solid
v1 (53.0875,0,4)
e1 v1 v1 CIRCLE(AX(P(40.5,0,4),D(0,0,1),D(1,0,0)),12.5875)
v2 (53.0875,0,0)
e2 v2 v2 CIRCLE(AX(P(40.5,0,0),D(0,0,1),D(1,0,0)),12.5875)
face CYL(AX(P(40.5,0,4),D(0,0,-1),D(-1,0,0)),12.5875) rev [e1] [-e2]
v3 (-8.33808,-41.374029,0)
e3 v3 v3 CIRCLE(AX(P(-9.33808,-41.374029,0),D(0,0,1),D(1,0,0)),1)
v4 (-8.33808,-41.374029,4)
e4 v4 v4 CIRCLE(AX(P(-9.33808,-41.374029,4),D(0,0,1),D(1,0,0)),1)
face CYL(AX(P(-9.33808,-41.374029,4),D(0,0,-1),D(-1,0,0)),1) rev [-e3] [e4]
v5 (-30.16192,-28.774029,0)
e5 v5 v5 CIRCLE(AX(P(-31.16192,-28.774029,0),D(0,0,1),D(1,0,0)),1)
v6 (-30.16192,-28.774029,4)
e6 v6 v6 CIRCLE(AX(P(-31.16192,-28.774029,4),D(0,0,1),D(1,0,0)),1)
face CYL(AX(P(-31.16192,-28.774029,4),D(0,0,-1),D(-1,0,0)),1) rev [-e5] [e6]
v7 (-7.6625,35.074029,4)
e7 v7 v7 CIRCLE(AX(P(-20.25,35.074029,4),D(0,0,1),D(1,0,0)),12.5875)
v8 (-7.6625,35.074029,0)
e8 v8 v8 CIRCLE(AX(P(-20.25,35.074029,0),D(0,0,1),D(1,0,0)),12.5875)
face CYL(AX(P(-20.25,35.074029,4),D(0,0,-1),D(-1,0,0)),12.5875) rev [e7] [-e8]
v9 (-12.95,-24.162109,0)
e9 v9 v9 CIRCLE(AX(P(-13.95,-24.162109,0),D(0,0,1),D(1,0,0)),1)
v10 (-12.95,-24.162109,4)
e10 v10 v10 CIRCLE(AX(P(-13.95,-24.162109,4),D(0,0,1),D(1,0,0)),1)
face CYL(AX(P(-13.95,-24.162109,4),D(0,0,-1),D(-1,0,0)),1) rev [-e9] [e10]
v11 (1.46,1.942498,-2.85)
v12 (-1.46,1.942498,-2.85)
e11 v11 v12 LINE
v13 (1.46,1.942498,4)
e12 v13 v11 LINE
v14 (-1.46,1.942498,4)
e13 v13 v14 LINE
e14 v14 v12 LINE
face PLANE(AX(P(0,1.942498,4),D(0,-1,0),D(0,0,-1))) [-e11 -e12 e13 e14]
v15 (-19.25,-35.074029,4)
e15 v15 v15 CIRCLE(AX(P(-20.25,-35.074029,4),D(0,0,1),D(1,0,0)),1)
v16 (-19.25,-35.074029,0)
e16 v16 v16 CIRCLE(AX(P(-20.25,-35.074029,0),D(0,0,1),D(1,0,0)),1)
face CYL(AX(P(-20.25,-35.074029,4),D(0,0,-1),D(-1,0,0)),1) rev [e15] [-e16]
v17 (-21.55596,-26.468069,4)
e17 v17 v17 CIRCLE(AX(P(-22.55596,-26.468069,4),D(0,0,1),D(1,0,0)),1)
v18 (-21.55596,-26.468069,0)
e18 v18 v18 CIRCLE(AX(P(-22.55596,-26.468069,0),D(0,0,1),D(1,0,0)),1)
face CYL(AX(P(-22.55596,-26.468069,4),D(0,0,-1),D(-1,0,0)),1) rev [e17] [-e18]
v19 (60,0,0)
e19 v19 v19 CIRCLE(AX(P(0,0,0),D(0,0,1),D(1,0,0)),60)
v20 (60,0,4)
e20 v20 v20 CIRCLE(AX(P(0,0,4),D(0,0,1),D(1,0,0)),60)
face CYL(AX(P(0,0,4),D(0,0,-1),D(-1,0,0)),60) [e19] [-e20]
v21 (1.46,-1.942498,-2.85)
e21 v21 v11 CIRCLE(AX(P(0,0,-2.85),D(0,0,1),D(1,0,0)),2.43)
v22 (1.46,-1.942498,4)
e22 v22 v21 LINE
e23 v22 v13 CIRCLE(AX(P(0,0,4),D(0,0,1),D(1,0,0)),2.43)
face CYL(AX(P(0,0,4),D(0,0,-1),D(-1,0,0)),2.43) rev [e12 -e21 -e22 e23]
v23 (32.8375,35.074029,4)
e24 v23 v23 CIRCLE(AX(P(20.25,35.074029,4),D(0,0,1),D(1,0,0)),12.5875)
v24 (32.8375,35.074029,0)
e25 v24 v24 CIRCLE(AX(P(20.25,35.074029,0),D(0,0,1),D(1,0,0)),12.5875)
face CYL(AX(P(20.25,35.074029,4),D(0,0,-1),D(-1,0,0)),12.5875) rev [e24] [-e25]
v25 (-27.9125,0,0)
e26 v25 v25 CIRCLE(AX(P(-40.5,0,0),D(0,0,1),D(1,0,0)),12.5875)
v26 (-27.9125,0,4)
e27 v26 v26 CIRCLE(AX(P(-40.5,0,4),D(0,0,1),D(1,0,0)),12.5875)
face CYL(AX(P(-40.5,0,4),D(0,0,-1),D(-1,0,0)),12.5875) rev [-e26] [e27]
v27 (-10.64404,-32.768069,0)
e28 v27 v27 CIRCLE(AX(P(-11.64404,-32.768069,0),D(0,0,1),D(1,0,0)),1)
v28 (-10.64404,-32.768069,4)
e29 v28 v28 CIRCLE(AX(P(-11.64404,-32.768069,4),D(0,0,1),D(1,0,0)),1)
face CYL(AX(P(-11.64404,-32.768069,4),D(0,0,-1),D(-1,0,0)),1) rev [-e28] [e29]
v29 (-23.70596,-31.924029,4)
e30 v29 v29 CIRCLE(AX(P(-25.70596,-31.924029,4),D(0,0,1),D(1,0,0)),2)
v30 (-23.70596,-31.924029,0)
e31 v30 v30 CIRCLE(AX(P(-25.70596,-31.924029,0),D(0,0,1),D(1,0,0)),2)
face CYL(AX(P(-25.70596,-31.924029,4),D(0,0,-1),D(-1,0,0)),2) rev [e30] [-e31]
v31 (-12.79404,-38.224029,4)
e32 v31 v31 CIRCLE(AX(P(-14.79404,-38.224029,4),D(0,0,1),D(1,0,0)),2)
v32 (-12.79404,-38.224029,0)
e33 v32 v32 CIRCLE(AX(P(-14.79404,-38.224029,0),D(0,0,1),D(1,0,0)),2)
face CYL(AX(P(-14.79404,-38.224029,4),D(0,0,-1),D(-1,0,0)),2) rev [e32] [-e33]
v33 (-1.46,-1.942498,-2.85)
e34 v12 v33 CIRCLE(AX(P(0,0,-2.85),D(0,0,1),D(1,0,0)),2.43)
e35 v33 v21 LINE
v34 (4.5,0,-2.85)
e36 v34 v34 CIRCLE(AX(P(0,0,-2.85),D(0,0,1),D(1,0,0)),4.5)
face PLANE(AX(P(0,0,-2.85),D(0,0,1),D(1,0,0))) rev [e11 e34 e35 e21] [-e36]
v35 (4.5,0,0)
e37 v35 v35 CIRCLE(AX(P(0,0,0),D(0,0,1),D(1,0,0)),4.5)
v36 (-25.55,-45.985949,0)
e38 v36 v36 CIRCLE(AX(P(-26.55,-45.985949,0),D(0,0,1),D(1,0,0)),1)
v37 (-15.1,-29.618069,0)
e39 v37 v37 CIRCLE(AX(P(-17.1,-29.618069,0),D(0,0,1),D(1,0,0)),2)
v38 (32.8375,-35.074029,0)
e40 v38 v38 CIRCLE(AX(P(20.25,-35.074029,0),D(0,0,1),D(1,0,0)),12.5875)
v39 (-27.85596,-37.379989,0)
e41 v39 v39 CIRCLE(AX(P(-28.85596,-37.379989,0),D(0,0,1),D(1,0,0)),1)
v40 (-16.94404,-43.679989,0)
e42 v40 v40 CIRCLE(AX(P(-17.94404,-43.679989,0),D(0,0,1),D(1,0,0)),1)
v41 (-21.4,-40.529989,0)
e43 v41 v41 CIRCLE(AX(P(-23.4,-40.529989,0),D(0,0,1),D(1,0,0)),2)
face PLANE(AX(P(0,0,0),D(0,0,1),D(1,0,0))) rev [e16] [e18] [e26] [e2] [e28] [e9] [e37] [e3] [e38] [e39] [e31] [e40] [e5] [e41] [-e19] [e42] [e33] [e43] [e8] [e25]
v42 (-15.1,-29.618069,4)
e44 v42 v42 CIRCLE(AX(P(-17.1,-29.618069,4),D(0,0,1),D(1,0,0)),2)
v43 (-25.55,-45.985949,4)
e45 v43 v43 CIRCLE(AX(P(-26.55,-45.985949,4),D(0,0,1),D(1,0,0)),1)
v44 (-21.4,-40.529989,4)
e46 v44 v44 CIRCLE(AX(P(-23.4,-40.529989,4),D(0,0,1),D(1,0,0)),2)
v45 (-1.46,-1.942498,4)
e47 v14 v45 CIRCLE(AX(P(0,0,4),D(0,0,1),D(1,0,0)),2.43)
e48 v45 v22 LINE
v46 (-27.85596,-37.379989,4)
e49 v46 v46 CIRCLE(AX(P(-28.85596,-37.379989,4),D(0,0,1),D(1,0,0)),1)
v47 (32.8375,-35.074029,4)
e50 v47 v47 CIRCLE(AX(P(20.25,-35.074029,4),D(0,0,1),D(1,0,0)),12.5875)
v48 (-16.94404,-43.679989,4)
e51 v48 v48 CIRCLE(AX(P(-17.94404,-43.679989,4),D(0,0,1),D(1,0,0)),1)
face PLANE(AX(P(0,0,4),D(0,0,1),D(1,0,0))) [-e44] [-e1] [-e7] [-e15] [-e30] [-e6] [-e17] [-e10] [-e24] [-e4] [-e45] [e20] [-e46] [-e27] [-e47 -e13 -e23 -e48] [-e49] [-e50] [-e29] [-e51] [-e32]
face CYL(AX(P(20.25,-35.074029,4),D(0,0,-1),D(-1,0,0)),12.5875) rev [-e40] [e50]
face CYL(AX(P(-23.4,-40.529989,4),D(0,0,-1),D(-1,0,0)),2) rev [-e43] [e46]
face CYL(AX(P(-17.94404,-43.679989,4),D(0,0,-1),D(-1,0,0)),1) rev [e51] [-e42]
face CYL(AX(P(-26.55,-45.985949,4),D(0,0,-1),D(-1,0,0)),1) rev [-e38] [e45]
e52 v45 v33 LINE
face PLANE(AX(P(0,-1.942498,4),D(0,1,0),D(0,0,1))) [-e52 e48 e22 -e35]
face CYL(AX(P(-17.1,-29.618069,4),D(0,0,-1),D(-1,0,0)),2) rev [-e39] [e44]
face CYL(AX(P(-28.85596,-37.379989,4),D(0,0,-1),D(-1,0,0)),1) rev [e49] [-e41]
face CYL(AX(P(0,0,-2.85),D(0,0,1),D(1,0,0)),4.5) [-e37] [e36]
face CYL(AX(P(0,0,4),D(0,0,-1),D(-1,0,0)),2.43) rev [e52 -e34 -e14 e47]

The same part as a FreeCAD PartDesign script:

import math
import FreeCAD as App
import Part
import Sketcher
from FreeCAD import Vector
Q = App.Units.Quantity

doc = App.newDocument("Part")
body = doc.addObject("PartDesign::Body", "Body")

# Sketch on XY plane
sketch1 = doc.addObject("Sketcher::SketchObject", "Sketch")
body.addObject(sketch1)
sketch1.AttachmentSupport = (doc.XY_Plane, [""])
sketch1.MapMode = "FlatFace"
sketch1.addGeometry(Part.Circle(Vector(0, 0, 0), Vector(0, 0, 1), 60), False)
sketch1.addConstraint([
    Sketcher.Constraint("Coincident", 0, 3, -1, 1),
    Sketcher.Constraint("Diameter", 0, Q("120 mm")),
])
pad1 = doc.addObject("PartDesign::Pad", "Pad")
body.addObject(pad1)
pad1.Profile = sketch1
pad1.Length = 4

# Sketch on XY plane
sketch2 = doc.addObject("Sketcher::SketchObject", "Sketch001")
body.addObject(sketch2)
sketch2.AttachmentSupport = (doc.XY_Plane, [""])
sketch2.MapMode = "FlatFace"
sketch2.addGeometry([
    Part.ArcOfCircle(Part.Circle(Vector(0, 0, 0), Vector(0, 0, 1), 2.43), math.radians(126.928867), math.radians(233.071133)),  # 0
    Part.LineSegment(Vector(-1.46, -1.942498, 0), Vector(1.46, -1.942498, 0)),  # 1
    Part.ArcOfCircle(Part.Circle(Vector(0, 0, 0), Vector(0, 0, 1), 2.43), math.radians(-53.071133), math.radians(53.071133)),  # 2
    Part.LineSegment(Vector(1.46, 1.942498, 0), Vector(-1.46, 1.942498, 0)),  # 3
    Part.Circle(Vector(-40.5, 0, 0), Vector(0, 0, 1), 12.5875),  # 4
    Part.Circle(Vector(-20.25, 35.074029, 0), Vector(0, 0, 1), 12.5875),  # 5
    Part.Circle(Vector(20.25, 35.074029, 0), Vector(0, 0, 1), 12.5875),  # 6
    Part.Circle(Vector(40.5, 0, 0), Vector(0, 0, 1), 12.5875),  # 7
    Part.Circle(Vector(20.25, -35.074029, 0), Vector(0, 0, 1), 12.5875),  # 8
    Part.Circle(Vector(-20.25, -35.074029, 0), Vector(0, 0, 1), 1),  # 9
    Part.Circle(Vector(-17.1, -29.618069, 0), Vector(0, 0, 1), 2),  # 10
    Part.Circle(Vector(-22.55596, -26.468069, 0), Vector(0, 0, 1), 1),  # 11
    Part.Circle(Vector(-11.64404, -32.768069, 0), Vector(0, 0, 1), 1),  # 12
    Part.Circle(Vector(-17.94404, -43.679989, 0), Vector(0, 0, 1), 1),  # 13
    Part.Circle(Vector(-28.85596, -37.379989, 0), Vector(0, 0, 1), 1),  # 14
    Part.Circle(Vector(-14.79404, -38.224029, 0), Vector(0, 0, 1), 2),  # 15
    Part.Circle(Vector(-25.70596, -31.924029, 0), Vector(0, 0, 1), 2),  # 16
    Part.Circle(Vector(-23.4, -40.529989, 0), Vector(0, 0, 1), 2),  # 17
    Part.Circle(Vector(-31.16192, -28.774029, 0), Vector(0, 0, 1), 1),  # 18
    Part.Circle(Vector(-13.95, -24.162109, 0), Vector(0, 0, 1), 1),  # 19
    Part.Circle(Vector(-9.33808, -41.374029, 0), Vector(0, 0, 1), 1),  # 20
    Part.Circle(Vector(-26.55, -45.985949, 0), Vector(0, 0, 1), 1),  # 21
], False)
sketch2.addConstraint([
    Sketcher.Constraint("Coincident", 0, 2, 1, 1),
    Sketcher.Constraint("Coincident", 1, 2, 2, 1),
    Sketcher.Constraint("Coincident", 2, 2, 3, 1),
    Sketcher.Constraint("Coincident", 3, 2, 0, 1),
    Sketcher.Constraint("Horizontal", 1),
    Sketcher.Constraint("Horizontal", 3),
    Sketcher.Constraint("Coincident", 0, 3, -1, 1),
    Sketcher.Constraint("Coincident", 2, 3, -1, 1),
    Sketcher.Constraint("Equal", 0, 2),
    Sketcher.Constraint("Equal", 4, 5),
    Sketcher.Constraint("Equal", 5, 6),
    Sketcher.Constraint("Equal", 6, 7),
    Sketcher.Constraint("Equal", 7, 8),
    Sketcher.Constraint("Equal", 9, 11),
    Sketcher.Constraint("Equal", 11, 12),
    Sketcher.Constraint("Equal", 12, 13),
    Sketcher.Constraint("Equal", 13, 14),
    Sketcher.Constraint("Equal", 10, 15),
    Sketcher.Constraint("Equal", 15, 16),
    Sketcher.Constraint("Equal", 16, 17),
    Sketcher.Constraint("Equal", 14, 18),
    Sketcher.Constraint("Equal", 18, 19),
    Sketcher.Constraint("Equal", 19, 20),
    Sketcher.Constraint("Equal", 20, 21),
    Sketcher.Constraint("Symmetric", 4, 3, 7, 3, -1, 1),
    Sketcher.Constraint("Symmetric", 5, 3, 8, 3, -1, 1),
    Sketcher.Constraint("Symmetric", 6, 3, 9, 3, -1, 1),
    Sketcher.Constraint("Symmetric", 5, 3, 6, 3, -2),
    Sketcher.Constraint("PointOnObject", 4, 3, -1),
    Sketcher.Constraint("Vertical", 1, 2, 2, 2),
    Sketcher.Constraint("Diameter", 9, Q("2 mm")),
    Sketcher.Constraint("Diameter", 10, Q("4 mm")),
    Sketcher.Constraint("Radius", 0, Q("2.43 mm")),
    Sketcher.Constraint("Diameter", 4, Q("25.175 mm")),
    Sketcher.Constraint("DistanceX", 4, 3, 7, 3, Q("81 mm")),
    Sketcher.Constraint("DistanceX", 1, 1, 1, 2, Q("2.92 mm")),
    Sketcher.Constraint("DistanceX", 10, 3, -1, 1, Q("17.1 mm")),
    Sketcher.Constraint("DistanceX", 17, 3, -1, 1, Q("23.4 mm")),
    Sketcher.Constraint("DistanceX", 5, 3, 6, 3, Q("40.5 mm")),
    Sketcher.Constraint("DistanceY", 12, 3, 11, 3, Q("6.3 mm")),
    Sketcher.Constraint("DistanceX", 13, 3, 12, 3, Q("6.3 mm")),
    Sketcher.Constraint("DistanceX", 14, 3, 11, 3, Q("6.3 mm")),
    Sketcher.Constraint("DistanceY", 13, 3, 14, 3, Q("6.3 mm")),
    Sketcher.Constraint("DistanceY", 15, 3, 16, 3, Q("6.3 mm")),
    Sketcher.Constraint("DistanceY", 9, 3, 18, 3, Q("6.3 mm")),
    Sketcher.Constraint("DistanceX", 9, 3, 19, 3, Q("6.3 mm")),
    Sketcher.Constraint("DistanceY", 20, 3, 9, 3, Q("6.3 mm")),
    Sketcher.Constraint("DistanceX", 21, 3, 9, 3, Q("6.3 mm")),
    Sketcher.Constraint("DistanceY", 10, 3, 11, 3, Q("3.15 mm")),
    Sketcher.Constraint("DistanceY", 15, 3, 9, 3, Q("3.15 mm")),
    Sketcher.Constraint("DistanceX", 15, 3, 12, 3, Q("3.15 mm")),
    Sketcher.Constraint("DistanceX", 14, 3, 16, 3, Q("3.15 mm")),
    Sketcher.Constraint("DistanceY", 13, 3, 17, 3, Q("3.15 mm")),
    Sketcher.Constraint("DistanceY", -1, 1, 5, 3, Q("35.074029 mm")),
    Sketcher.Constraint("DistanceY", 10, 3, -1, 1, Q("29.618069 mm")),
    Sketcher.Constraint("DistanceX", 11, 3, -1, 1, Q("22.55596 mm")),
    Sketcher.Constraint("DistanceX", 12, 3, -1, 1, Q("11.64404 mm")),
    Sketcher.Constraint("DistanceY", 13, 3, -1, 1, Q("43.679989 mm")),
    Sketcher.Constraint("DistanceX", 18, 3, -1, 1, Q("31.16192 mm")),
    Sketcher.Constraint("DistanceY", 19, 3, -1, 1, Q("24.162109 mm")),
    Sketcher.Constraint("DistanceX", 20, 3, -1, 1, Q("9.33808 mm")),
    Sketcher.Constraint("DistanceY", 21, 3, -1, 1, Q("45.985949 mm")),
])
pocket1 = doc.addObject("PartDesign::Pocket", "Pocket")
body.addObject(pocket1)
pocket1.Profile = sketch2
pocket1.Length = 4
pocket1.Reversed = True

# Sketch on XY plane
sketch3 = doc.addObject("Sketcher::SketchObject", "Sketch002")
body.addObject(sketch3)
sketch3.AttachmentSupport = (doc.XY_Plane, [""])
sketch3.MapMode = "FlatFace"
sketch3.AttachmentOffset = App.Placement(Vector(0, 0, -2.85), App.Rotation())
sketch3.addGeometry([
    Part.Circle(Vector(0, 0, 0), Vector(0, 0, 1), 4.5),  # 0
    Part.ArcOfCircle(Part.Circle(Vector(0, 0, 0), Vector(0, 0, 1), 2.43), math.radians(-53.071133), math.radians(53.071133)),  # 1
    Part.LineSegment(Vector(1.46, -1.942498, 0), Vector(-1.46, -1.942498, 0)),  # 2
    Part.ArcOfCircle(Part.Circle(Vector(0, 0, 0), Vector(0, 0, 1), 2.43), math.radians(126.928867), math.radians(233.071133)),  # 3
    Part.LineSegment(Vector(-1.46, 1.942498, 0), Vector(1.46, 1.942498, 0)),  # 4
], False)
sketch3.addConstraint([
    Sketcher.Constraint("Coincident", 1, 1, 2, 1),
    Sketcher.Constraint("Coincident", 2, 2, 3, 2),
    Sketcher.Constraint("Coincident", 3, 1, 4, 1),
    Sketcher.Constraint("Coincident", 4, 2, 1, 2),
    Sketcher.Constraint("Horizontal", 2),
    Sketcher.Constraint("Horizontal", 4),
    Sketcher.Constraint("Coincident", 0, 3, -1, 1),
    Sketcher.Constraint("Coincident", 1, 3, -1, 1),
    Sketcher.Constraint("Coincident", 3, 3, -1, 1),
    Sketcher.Constraint("Equal", 1, 3),
    Sketcher.Constraint("Vertical", 2, 2, 3, 1),
    Sketcher.Constraint("Diameter", 0, Q("9 mm")),
    Sketcher.Constraint("Radius", 1, Q("2.43 mm")),
    Sketcher.Constraint("DistanceX", 2, 2, 2, 1, Q("2.92 mm")),
])
pad2 = doc.addObject("PartDesign::Pad", "Pad001")
body.addObject(pad2)
pad2.Profile = sketch3
pad2.Length = 2.85

doc.recompute()
